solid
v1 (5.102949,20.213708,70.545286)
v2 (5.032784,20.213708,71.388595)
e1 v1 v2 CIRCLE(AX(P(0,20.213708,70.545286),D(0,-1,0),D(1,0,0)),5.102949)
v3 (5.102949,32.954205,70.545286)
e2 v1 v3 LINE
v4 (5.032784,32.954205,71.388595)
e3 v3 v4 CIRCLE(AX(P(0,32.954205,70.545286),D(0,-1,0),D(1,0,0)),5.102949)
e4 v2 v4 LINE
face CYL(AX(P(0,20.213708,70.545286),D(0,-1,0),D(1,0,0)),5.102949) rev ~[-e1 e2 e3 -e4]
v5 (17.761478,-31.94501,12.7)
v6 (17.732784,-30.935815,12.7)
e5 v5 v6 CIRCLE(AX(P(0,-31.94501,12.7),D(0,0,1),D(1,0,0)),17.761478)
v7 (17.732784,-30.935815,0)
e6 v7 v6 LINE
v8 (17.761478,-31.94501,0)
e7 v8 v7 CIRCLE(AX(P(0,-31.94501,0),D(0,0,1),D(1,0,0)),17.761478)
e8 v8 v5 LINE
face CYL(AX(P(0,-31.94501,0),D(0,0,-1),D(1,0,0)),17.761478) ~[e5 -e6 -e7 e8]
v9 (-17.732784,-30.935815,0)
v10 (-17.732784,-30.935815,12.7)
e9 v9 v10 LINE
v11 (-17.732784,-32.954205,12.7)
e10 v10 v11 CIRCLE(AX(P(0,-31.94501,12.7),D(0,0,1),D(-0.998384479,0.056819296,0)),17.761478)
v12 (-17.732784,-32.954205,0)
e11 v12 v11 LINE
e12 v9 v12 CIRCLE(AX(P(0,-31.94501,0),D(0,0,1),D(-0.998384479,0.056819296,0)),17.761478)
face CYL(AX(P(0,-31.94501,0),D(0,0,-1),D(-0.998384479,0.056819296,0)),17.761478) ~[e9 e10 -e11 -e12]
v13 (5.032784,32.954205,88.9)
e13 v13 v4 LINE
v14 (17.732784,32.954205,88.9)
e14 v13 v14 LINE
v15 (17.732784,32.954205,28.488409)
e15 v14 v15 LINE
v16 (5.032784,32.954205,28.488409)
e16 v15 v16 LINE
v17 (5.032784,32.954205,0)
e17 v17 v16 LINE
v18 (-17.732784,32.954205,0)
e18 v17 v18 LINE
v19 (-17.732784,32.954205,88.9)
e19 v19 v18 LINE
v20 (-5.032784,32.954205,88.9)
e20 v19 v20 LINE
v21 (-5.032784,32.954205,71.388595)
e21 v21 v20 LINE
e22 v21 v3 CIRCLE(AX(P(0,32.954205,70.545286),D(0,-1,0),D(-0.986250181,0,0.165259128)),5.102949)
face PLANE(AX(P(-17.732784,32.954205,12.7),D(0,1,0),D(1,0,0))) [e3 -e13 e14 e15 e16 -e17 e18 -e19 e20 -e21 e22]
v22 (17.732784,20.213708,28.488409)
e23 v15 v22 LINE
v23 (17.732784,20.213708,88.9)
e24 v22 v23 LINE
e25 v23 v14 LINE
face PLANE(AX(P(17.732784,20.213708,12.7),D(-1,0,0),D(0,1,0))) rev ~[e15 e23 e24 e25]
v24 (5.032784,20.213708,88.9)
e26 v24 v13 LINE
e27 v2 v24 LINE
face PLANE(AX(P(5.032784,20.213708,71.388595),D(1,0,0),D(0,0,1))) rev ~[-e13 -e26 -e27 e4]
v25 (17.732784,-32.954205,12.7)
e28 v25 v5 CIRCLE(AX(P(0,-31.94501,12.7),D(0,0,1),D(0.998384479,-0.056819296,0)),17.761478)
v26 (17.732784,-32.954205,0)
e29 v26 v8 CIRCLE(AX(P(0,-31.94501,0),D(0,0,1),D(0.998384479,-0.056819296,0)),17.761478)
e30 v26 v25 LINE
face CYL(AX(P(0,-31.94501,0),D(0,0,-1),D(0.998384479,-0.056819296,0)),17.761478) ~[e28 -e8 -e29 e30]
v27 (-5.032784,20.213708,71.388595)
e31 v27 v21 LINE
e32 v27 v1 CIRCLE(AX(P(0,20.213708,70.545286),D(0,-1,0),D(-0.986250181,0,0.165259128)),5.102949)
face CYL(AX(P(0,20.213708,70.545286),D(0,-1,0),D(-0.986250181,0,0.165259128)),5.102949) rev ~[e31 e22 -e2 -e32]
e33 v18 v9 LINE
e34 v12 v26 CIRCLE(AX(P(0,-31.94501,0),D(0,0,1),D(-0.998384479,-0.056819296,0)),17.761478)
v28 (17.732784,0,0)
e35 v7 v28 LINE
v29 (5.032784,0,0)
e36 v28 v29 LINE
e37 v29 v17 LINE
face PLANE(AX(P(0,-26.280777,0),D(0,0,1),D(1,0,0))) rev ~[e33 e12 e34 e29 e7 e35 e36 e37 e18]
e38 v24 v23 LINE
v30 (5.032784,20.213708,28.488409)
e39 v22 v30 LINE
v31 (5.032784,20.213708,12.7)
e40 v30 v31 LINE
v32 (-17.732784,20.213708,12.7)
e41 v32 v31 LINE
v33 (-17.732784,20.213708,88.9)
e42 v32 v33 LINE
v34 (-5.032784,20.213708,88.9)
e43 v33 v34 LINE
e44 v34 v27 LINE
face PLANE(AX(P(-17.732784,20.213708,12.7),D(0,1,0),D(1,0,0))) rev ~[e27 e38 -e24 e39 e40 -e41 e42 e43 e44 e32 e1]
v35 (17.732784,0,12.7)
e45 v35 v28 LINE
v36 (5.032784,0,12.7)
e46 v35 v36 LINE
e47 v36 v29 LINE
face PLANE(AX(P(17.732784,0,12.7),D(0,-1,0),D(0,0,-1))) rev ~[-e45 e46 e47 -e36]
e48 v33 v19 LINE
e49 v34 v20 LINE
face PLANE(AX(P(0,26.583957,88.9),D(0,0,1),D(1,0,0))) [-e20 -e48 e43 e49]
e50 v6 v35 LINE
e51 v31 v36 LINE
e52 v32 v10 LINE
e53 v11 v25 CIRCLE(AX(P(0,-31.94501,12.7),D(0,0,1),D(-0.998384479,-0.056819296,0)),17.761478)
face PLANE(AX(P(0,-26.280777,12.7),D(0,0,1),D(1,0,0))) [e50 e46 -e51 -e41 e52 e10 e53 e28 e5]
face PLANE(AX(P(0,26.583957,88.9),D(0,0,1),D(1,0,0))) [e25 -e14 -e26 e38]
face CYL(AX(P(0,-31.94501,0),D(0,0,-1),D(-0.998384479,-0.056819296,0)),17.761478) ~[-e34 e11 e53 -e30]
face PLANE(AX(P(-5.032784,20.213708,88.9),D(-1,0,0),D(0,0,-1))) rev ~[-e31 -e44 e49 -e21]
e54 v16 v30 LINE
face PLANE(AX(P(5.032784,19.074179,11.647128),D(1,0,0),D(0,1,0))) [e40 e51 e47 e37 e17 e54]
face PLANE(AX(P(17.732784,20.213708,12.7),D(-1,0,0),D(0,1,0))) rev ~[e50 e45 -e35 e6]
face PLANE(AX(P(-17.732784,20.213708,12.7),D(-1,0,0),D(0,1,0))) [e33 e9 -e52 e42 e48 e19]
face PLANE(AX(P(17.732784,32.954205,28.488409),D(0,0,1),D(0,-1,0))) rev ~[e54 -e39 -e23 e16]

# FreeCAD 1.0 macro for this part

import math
import FreeCAD as App
import Part
import Sketcher
Q = App.Units.Quantity

doc = App.newDocument("Part")
body = doc.addObject("PartDesign::Body", "Body")

# Sketch on XY plane
sketch1 = body.newObject("Sketcher::SketchObject", "Sketch")
sketch1.AttachmentSupport = (doc.getObject("XY_Plane"), [""])
sketch1.MapMode = "FlatFace"
sketch1.addGeometry([
    Part.ArcOfCircle(Part.Circle(App.Vector(0, -31.9, 0), App.Vector(0, 0, 1), 17.8), math.radians(176.74), math.radians(183.26)),  # 0
    Part.ArcOfCircle(Part.Circle(App.Vector(0, -31.9, 0), App.Vector(0, 0, 1), 17.8), math.radians(-177), math.radians(-3)),  # 1
    Part.ArcOfCircle(Part.Circle(App.Vector(0, -31.9, 0), App.Vector(0, 0, 1), 17.8), math.radians(-3.26), math.radians(0)),  # 2
    Part.ArcOfCircle(Part.Circle(App.Vector(0, -31.9, 0), App.Vector(0, 0, 1), 17.8), math.radians(0), math.radians(3.26)),  # 3
    Part.LineSegment(App.Vector(17.7, -30.9, 0), App.Vector(17.7, 33, 0)),  # 4
    Part.LineSegment(App.Vector(17.7, 33, 0), App.Vector(-17.7, 33, 0)),  # 5
    Part.LineSegment(App.Vector(-17.7, 33, 0), App.Vector(-17.7, -30.9, 0)),  # 6
], False)
sketch1.addConstraint([
    Sketcher.Constraint("Tangent", 0, 2, 1, 1),
    Sketcher.Constraint("Tangent", 1, 2, 2, 1),
    Sketcher.Constraint("Tangent", 2, 2, 3, 1),
    Sketcher.Constraint("Coincident", 3, 2, 4, 1),
    Sketcher.Constraint("Coincident", 4, 2, 5, 1),
    Sketcher.Constraint("Coincident", 5, 2, 6, 1),
    Sketcher.Constraint("Coincident", 6, 2, 0, 1),
    Sketcher.Constraint("Vertical", 4),
    Sketcher.Constraint("Horizontal", 5),
    Sketcher.Constraint("Vertical", 6),
    Sketcher.Constraint("Coincident", 2, 3, 0, 3),
    Sketcher.Constraint("Equal", 2, 3),
    Sketcher.Constraint("Symmetric", 0, 2, 4, 2, -1, 1),
    Sketcher.Constraint("Symmetric", 1, 2, 5, 2, -1, 1),
    Sketcher.Constraint("PointOnObject", 0, 3, -2),
    Sketcher.Constraint("Horizontal", 3, 3, 2, 2),
    Sketcher.Constraint("Radius", 0, 17.761478),
    Sketcher.Constraint("DistanceX", 5, 2, 5, 1, 35.465568),
    Sketcher.Constraint("DistanceY", 4, 1, 4, 2, 63.89002),
])
pad1 = body.newObject("PartDesign::Pad", "Pad")
pad1.Profile = sketch1
pad1.Length = Q("0.5 in")

# Sketch on XY plane
sketch2 = body.newObject("Sketcher::SketchObject", "Sketch001")
sketch2.AttachmentSupport = (doc.getObject("XY_Plane"), [""])
sketch2.MapMode = "FlatFace"
sketch2.AttachmentOffset = App.Placement(App.Vector(0, 0, 0.5 * 25.4), App.Rotation())
sketch2.addGeometry([
    Part.LineSegment(App.Vector(-18, 33, 0), App.Vector(-18, 20, 0)),
    Part.LineSegment(App.Vector(-18, 20, 0), App.Vector(18, 20, 0)),
    Part.LineSegment(App.Vector(18, 20, 0), App.Vector(18, 33, 0)),
    Part.LineSegment(App.Vector(18, 33, 0), App.Vector(-18, 33, 0)),
], False)
sketch2.addConstraint([
    Sketcher.Constraint("Coincident", 0, 2, 1, 1),
    Sketcher.Constraint("Coincident", 1, 2, 2, 1),
    Sketcher.Constraint("Coincident", 2, 2, 3, 1),
    Sketcher.Constraint("Coincident", 3, 2, 0, 1),
    Sketcher.Constraint("Vertical", 0),
    Sketcher.Constraint("Horizontal", 1),
    Sketcher.Constraint("Vertical", 2),
    Sketcher.Constraint("Horizontal", 3),
    Sketcher.Constraint("DistanceX", 1, 1, 1, 2, 35.465568),
    Sketcher.Constraint("DistanceY", 0, 2, 0, 1, 12.740497),
    Sketcher.Constraint("DistanceY", -1, 1, 0, 2, 20.213708),
    Sketcher.Constraint("DistanceX", 0, 2, -1, 1, 17.732784),
])
pad2 = body.newObject("PartDesign::Pad", "Pad001")
pad2.Profile = sketch2
pad2.Length = Q("3 in")

# Sketch on XZ plane
sketch3 = body.newObject("Sketcher::SketchObject", "Sketch002")
sketch3.AttachmentSupport = (doc.getObject("XZ_Plane"), [""])
sketch3.MapMode = "FlatFace"
sketch3.AttachmentOffset = App.Placement(App.Vector(0, 0, -20.213708), App.Rotation())
sketch3.addGeometry([
    Part.LineSegment(App.Vector(5, 88.9, 0), App.Vector(-5, 88.9, 0)),  # 0
    Part.LineSegment(App.Vector(-5, 88.9, 0), App.Vector(-5, 71.4, 0)),  # 1
    Part.ArcOfCircle(Part.Circle(App.Vector(0, 70.5, 0), App.Vector(0, 0, 1), 5.1), math.radians(170), math.radians(360)),  # 2
    Part.ArcOfCircle(Part.Circle(App.Vector(0, 70.5, 0), App.Vector(0, 0, 1), 5.1), math.radians(0), math.radians(9.51)),  # 3
    Part.LineSegment(App.Vector(5, 71.4, 0), App.Vector(5, 88.9, 0)),  # 4
], False)
sketch3.addConstraint([
    Sketcher.Constraint("Coincident", 0, 2, 1, 1),
    Sketcher.Constraint("Coincident", 1, 2, 2, 1),
    Sketcher.Constraint("Tangent", 2, 2, 3, 1),
    Sketcher.Constraint("Coincident", 3, 2, 4, 1),
    Sketcher.Constraint("Coincident", 4, 2, 0, 1),
    Sketcher.Constraint("Horizontal", 0),
    Sketcher.Constraint("Vertical", 1),
    Sketcher.Constraint("Vertical", 4),
    Sketcher.Constraint("Equal", 2, 3),
    Sketcher.Constraint("Symmetric", 1, 2, 3, 2, -2),
    Sketcher.Constraint("Horizontal", 3, 3, 2, 2),
    Sketcher.Constraint("DistanceY", -1, 1, 0, 2, Q("3.5 in")),
    Sketcher.Constraint("Radius", 2, 5.102949),
    Sketcher.Constraint("DistanceX", 0, 2, 0, 1, 10.065568),
    Sketcher.Constraint("DistanceY", 1, 2, 1, 1, 17.511405),
])
pocket1 = body.newObject("PartDesign::Pocket", "Pocket")
pocket1.Profile = sketch3
pocket1.Length = Q("1 in")

# Sketch on YZ plane
sketch4 = body.newObject("Sketcher::SketchObject", "Sketch003")
sketch4.AttachmentSupport = (doc.getObject("YZ_Plane"), [""])
sketch4.MapMode = "FlatFace"
sketch4.AttachmentOffset = App.Placement(App.Vector(0, 0, 17.732784), App.Rotation())
sketch4.addGeometry([
    Part.LineSegment(App.Vector(0, 0, 0), App.Vector(33, 0, 0)),  # 0
    Part.LineSegment(App.Vector(33, 0, 0), App.Vector(33, 28, 0)),  # 1
    Part.LineSegment(App.Vector(33, 28, 0), App.Vector(20, 28, 0)),  # 2
    Part.LineSegment(App.Vector(20, 28, 0), App.Vector(20, 13, 0)),  # 3
    Part.LineSegment(App.Vector(20, 13, 0), App.Vector(0, 13, 0)),  # 4
    Part.LineSegment(App.Vector(0, 13, 0), App.Vector(0, 0, 0)),  # 5
], False)
sketch4.addConstraint([
    Sketcher.Constraint("Coincident", 0, 2, 1, 1),
    Sketcher.Constraint("Coincident", 1, 2, 2, 1),
    Sketcher.Constraint("Coincident", 2, 2, 3, 1),
    Sketcher.Constraint("Coincident", 3, 2, 4, 1),
    Sketcher.Constraint("Coincident", 4, 2, 5, 1),
    Sketcher.Constraint("Coincident", 5, 2, 0, 1),
    Sketcher.Constraint("Horizontal", 0),
    Sketcher.Constraint("Vertical", 1),
    Sketcher.Constraint("Horizontal", 2),
    Sketcher.Constraint("Vertical", 3),
    Sketcher.Constraint("Horizontal", 4),
    Sketcher.Constraint("Vertical", 5),
    Sketcher.Constraint("Coincident", 5, 2, -1, 1),
    Sketcher.Constraint("DistanceY", 5, 2, 5, 1, Q("0.5 in")),
    Sketcher.Constraint("DistanceX", 4, 2, 4, 1, 20.213708),
    Sketcher.Constraint("DistanceY", 1, 1, 1, 2, 28.488409),
    Sketcher.Constraint("DistanceX", 0, 1, 0, 2, 32.954205),
])
pocket2 = body.newObject("PartDesign::Pocket", "Pocket001")
pocket2.Profile = sketch4
pocket2.Length = Q("0.5 in")

doc.recompute()
